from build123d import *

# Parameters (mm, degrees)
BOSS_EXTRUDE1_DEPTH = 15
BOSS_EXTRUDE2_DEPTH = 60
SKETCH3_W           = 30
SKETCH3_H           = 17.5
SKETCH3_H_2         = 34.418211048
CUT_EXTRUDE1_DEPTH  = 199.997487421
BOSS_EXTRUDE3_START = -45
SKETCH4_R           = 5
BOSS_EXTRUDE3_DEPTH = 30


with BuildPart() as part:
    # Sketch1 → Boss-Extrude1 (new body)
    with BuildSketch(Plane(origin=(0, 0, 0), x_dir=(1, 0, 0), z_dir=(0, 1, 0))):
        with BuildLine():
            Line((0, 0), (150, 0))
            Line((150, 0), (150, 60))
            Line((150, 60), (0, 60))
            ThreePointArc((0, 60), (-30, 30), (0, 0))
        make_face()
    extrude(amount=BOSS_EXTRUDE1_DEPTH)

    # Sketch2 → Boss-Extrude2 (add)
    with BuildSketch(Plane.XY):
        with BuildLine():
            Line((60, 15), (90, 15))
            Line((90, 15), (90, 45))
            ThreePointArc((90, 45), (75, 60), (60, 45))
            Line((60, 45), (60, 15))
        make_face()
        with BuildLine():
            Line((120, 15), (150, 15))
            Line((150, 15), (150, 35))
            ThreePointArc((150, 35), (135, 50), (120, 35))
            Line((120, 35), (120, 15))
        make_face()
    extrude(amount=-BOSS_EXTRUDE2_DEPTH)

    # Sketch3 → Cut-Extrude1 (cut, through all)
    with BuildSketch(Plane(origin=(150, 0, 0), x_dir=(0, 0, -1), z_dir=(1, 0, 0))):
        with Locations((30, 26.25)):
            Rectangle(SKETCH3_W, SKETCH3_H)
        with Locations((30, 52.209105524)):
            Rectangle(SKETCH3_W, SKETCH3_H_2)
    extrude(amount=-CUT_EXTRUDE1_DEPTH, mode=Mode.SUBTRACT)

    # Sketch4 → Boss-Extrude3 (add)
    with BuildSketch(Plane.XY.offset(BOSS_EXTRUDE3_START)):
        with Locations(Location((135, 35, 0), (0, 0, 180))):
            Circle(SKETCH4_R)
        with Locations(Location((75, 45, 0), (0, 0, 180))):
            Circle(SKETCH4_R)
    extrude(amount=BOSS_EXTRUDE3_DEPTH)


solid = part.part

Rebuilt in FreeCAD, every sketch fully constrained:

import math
import FreeCAD as App
import Part
import Sketcher
from FreeCAD import Vector
Q = App.Units.Quantity


def add_polygon(sketch, points):
    """Adds a closed chain of lines whose ends are joined by coincident constraints."""
    first, n = sketch.GeometryCount, len(points)
    for a, b in zip(points, points[1:] + points[:1]):
        sketch.addGeometry(Part.LineSegment(App.Vector(*a, 0), App.Vector(*b, 0)), False)
    for i in range(n):
        sketch.addConstraint(Sketcher.Constraint("Coincident", first + i, 2, first + (i + 1) % n, 1))

doc = App.newDocument("Part")
body = doc.addObject("PartDesign::Body", "Body")

sketch1 = body.newObject("Sketcher::SketchObject", "Sketch")
sketch1.AttachmentSupport = (doc.getObject("XZ_Plane"), [""])
sketch1.MapMode = "FlatFace"
sketch1.addGeometry(Part.LineSegment(Vector(0, 0, 0), Vector(150, 0, 0)), False)
sketch1.addGeometry(Part.LineSegment(Vector(150, 0, 0), Vector(150, -60, 0)), False)
sketch1.addGeometry(Part.LineSegment(Vector(150, -60, 0), Vector(0, -60, 0)), False)
sketch1.addGeometry(Part.ArcOfCircle(Part.Circle(Vector(0, -30, 0), Vector(0, 0, 1), 30), math.radians(90), math.radians(270)), False)
sketch1.addConstraint(Sketcher.Constraint("Coincident", 0, 2, 1, 1))
sketch1.addConstraint(Sketcher.Constraint("Coincident", 1, 2, 2, 1))
sketch1.addConstraint(Sketcher.Constraint("Tangent", 2, 2, 3, 2))
sketch1.addConstraint(Sketcher.Constraint("Tangent", 3, 1, 0, 1))
sketch1.addConstraint(Sketcher.Constraint("Horizontal", 0))
sketch1.addConstraint(Sketcher.Constraint("Vertical", 1))
sketch1.addConstraint(Sketcher.Constraint("Horizontal", 2))
sketch1.addConstraint(Sketcher.Constraint("Coincident", 3, 1, -1, 1))
sketch1.addConstraint(Sketcher.Constraint("Radius", 3, Q("30 mm")))
sketch1.addConstraint(Sketcher.Constraint("DistanceX", 0, 1, 0, 2, Q("150 mm")))
pad1 = body.newObject("PartDesign::Pad", "Pad")
pad1.Profile = sketch1
pad1.Length = 15
pad1.Reversed = True

sketch2 = body.newObject("Sketcher::SketchObject", "Sketch001")
sketch2.AttachmentSupport = (doc.getObject("XY_Plane"), [""])
sketch2.MapMode = "FlatFace"
sketch2.addGeometry(Part.LineSegment(Vector(60, 15, 0), Vector(90, 15, 0)), False)
sketch2.addGeometry(Part.LineSegment(Vector(90, 15, 0), Vector(90, 45, 0)), False)
sketch2.addGeometry(Part.ArcOfCircle(Part.Circle(Vector(75, 45, 0), Vector(0, 0, 1), 15), math.radians(0), math.radians(180)), False)
sketch2.addGeometry(Part.LineSegment(Vector(60, 45, 0), Vector(60, 15, 0)), False)
sketch2.addGeometry(Part.LineSegment(Vector(120, 15, 0), Vector(150, 15, 0)), False)
sketch2.addGeometry(Part.LineSegment(Vector(150, 15, 0), Vector(150, 35, 0)), False)
sketch2.addGeometry(Part.ArcOfCircle(Part.Circle(Vector(135, 35, 0), Vector(0, 0, 1), 15), math.radians(0), math.radians(180)), False)
sketch2.addGeometry(Part.LineSegment(Vector(120, 35, 0), Vector(120, 15, 0)), False)
sketch2.addConstraint(Sketcher.Constraint("Coincident", 0, 2, 1, 1))
sketch2.addConstraint(Sketcher.Constraint("Tangent", 1, 2, 2, 1))
sketch2.addConstraint(Sketcher.Constraint("Tangent", 2, 2, 3, 1))
sketch2.addConstraint(Sketcher.Constraint("Coincident", 3, 2, 0, 1))
sketch2.addConstraint(Sketcher.Constraint("Coincident", 4, 2, 5, 1))
sketch2.addConstraint(Sketcher.Constraint("Tangent", 5, 2, 6, 1))
sketch2.addConstraint(Sketcher.Constraint("Tangent", 6, 2, 7, 1))
sketch2.addConstraint(Sketcher.Constraint("Coincident", 7, 2, 4, 1))
sketch2.addConstraint(Sketcher.Constraint("Horizontal", 0))
sketch2.addConstraint(Sketcher.Constraint("Vertical", 1))
sketch2.addConstraint(Sketcher.Constraint("Vertical", 3))
sketch2.addConstraint(Sketcher.Constraint("Horizontal", 4))
sketch2.addConstraint(Sketcher.Constraint("Vertical", 5))
sketch2.addConstraint(Sketcher.Constraint("Vertical", 7))
sketch2.addConstraint(Sketcher.Constraint("Equal", 2, 6))
sketch2.addConstraint(Sketcher.Constraint("Horizontal", 3, 2, 4, 2))
sketch2.addConstraint(Sketcher.Constraint("Equal", 4, 1))
sketch2.addConstraint(Sketcher.Constraint("Radius", 2, Q("15 mm")))
sketch2.addConstraint(Sketcher.Constraint("DistanceY", 5, 1, 5, 2, Q("20 mm")))
sketch2.addConstraint(Sketcher.Constraint("DistanceX", -1, 1, 2, 3, Q("75 mm")))
sketch2.addConstraint(Sketcher.Constraint("DistanceY", -1, 1, 2, 3, Q("45 mm")))
sketch2.addConstraint(Sketcher.Constraint("DistanceX", -1, 1, 6, 3, Q("135 mm")))
pad2 = body.newObject("PartDesign::Pad", "Pad001")
pad2.Profile = sketch2
pad2.Length = 60
pad2.Reversed = True

sketch3 = body.newObject("Sketcher::SketchObject", "Sketch002")
sketch3.AttachmentSupport = (doc.getObject("YZ_Plane"), [""])
sketch3.MapMode = "FlatFace"
sketch3.AttachmentOffset = App.Placement(Vector(0, 0, 150), App.Rotation())
add_polygon(sketch3, [(18, -15), (18, -45), (69, -45), (69, -15)])
sketch3.addConstraint(Sketcher.Constraint("Vertical", 0))
sketch3.addConstraint(Sketcher.Constraint("Horizontal", 1))
sketch3.addConstraint(Sketcher.Constraint("Vertical", 2))
sketch3.addConstraint(Sketcher.Constraint("Horizontal", 3))
sketch3.addConstraint(Sketcher.Constraint("DistanceY", 0, 2, 0, 1, Q("30 mm")))
sketch3.addConstraint(Sketcher.Constraint("DistanceY", 0, 2, -1, 1, Q("45 mm")))
sketch3.addConstraint(Sketcher.Constraint("DistanceX", -1, 1, 0, 2, Q("17.5 mm")))
sketch3.addConstraint(Sketcher.Constraint("DistanceX", 1, 1, 1, 2, Q("51.918211 mm")))
pocket1 = body.newObject("PartDesign::Pocket", "Pocket")
pocket1.Profile = sketch3
pocket1.Type = "ThroughAll"

sketch4 = body.newObject("Sketcher::SketchObject", "Sketch003")
sketch4.AttachmentSupport = (doc.getObject("XY_Plane"), [""])
sketch4.MapMode = "FlatFace"
sketch4.AttachmentOffset = App.Placement(Vector(0, 0, -45), App.Rotation())
sketch4.addGeometry(Part.Circle(Vector(135, 35, 0), Vector(0, 0, 1), 5), False)
sketch4.addGeometry(Part.Circle(Vector(75, 45, 0), Vector(0, 0, 1), 5), False)
sketch4.addConstraint(Sketcher.Constraint("Equal", 0, 1))
sketch4.addConstraint(Sketcher.Constraint("Diameter", 0, Q("10 mm")))
sketch4.addConstraint(Sketcher.Constraint("DistanceX", -1, 1, 0, 3, Q("135 mm")))
sketch4.addConstraint(Sketcher.Constraint("DistanceY", -1, 1, 0, 3, Q("35 mm")))
sketch4.addConstraint(Sketcher.Constraint("DistanceX", -1, 1, 1, 3, Q("75 mm")))
sketch4.addConstraint(Sketcher.Constraint("DistanceY", -1, 1, 1, 3, Q("45 mm")))
pad3 = body.newObject("PartDesign::Pad", "Pad002")
pad3.Profile = sketch4
pad3.Length = 30

doc.recompute()
